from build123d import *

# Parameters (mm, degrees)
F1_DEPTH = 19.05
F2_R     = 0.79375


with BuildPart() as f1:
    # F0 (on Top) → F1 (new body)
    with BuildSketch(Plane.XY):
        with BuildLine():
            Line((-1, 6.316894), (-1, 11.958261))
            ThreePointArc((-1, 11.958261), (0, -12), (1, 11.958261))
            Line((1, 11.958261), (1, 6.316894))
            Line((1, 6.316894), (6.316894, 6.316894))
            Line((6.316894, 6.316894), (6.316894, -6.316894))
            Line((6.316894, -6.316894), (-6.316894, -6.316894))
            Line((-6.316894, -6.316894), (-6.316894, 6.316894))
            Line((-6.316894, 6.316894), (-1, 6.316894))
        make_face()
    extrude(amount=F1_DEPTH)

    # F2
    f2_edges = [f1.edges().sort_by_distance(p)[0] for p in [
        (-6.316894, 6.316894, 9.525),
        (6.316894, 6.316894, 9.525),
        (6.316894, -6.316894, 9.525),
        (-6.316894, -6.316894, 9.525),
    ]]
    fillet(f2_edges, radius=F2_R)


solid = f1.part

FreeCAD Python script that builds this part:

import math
import FreeCAD as App
import Part
import Sketcher

V = App.Vector
Q = App.Units.Quantity


def edges_at(feature, points):
    """Names of the edges that pass closest to the given points."""
    edges = feature.Shape.Edges
    near = lambda p: min(range(len(edges)), key=lambda i: edges[i].distToShape(Part.Vertex(*p))[0])
    return sorted({f"Edge{near(p) + 1}" for p in points})

doc = App.newDocument("Part")
body = doc.addObject("PartDesign::Body", "Body")

sketch1 = body.newObject("Sketcher::SketchObject", "Sketch")
sketch1.AttachmentSupport = (doc.getObject("XY_Plane"), [""])
sketch1.MapMode = "FlatFace"
sketch1.addGeometry([
    Part.LineSegment(V(-1, 6.3, 0), V(-1, 12, 0)),
    Part.ArcOfCircle(Part.Circle(V(0, 0, 0), V(0, 0, 1), 12), math.radians(95), math.radians(445)),
    Part.LineSegment(V(1, 12, 0), V(1, 6.3, 0)),
    Part.LineSegment(V(1, 6.3, 0), V(6.3, 6.3, 0)),
    Part.LineSegment(V(6.3, 6.3, 0), V(6.3, -6.3, 0)),
    Part.LineSegment(V(6.3, -6.3, 0), V(-6.3, -6.3, 0)),
    Part.LineSegment(V(-6.3, -6.3, 0), V(-6.3, 6.3, 0)),
    Part.LineSegment(V(-6.3, 6.3, 0), V(-1, 6.3, 0)),
], False)
sketch1.addConstraint([
    Sketcher.Constraint("Coincident", 0, 2, 1, 1),
    Sketcher.Constraint("Coincident", 1, 2, 2, 1),
    Sketcher.Constraint("Coincident", 2, 2, 3, 1),
    Sketcher.Constraint("Coincident", 3, 2, 4, 1),
    Sketcher.Constraint("Coincident", 4, 2, 5, 1),
    Sketcher.Constraint("Coincident", 5, 2, 6, 1),
    Sketcher.Constraint("Coincident", 6, 2, 7, 1),
    Sketcher.Constraint("Coincident", 7, 2, 0, 1),
    Sketcher.Constraint("Vertical", 0),
    Sketcher.Constraint("Vertical", 2),
    Sketcher.Constraint("Horizontal", 3),
    Sketcher.Constraint("Vertical", 4),
    Sketcher.Constraint("Horizontal", 5),
    Sketcher.Constraint("Vertical", 6),
    Sketcher.Constraint("Horizontal", 7),
    Sketcher.Constraint("Coincident", 1, 3, -1, 1),
    Sketcher.Constraint("Symmetric", 3, 2, 5, 2, -1, 1),
    Sketcher.Constraint("Symmetric", 2, 2, 7, 2, -2),
    Sketcher.Constraint("Equal", 5, 4),
    Sketcher.Constraint("Radius", 1, Q("12 mm")),
    Sketcher.Constraint("DistanceX", 0, 2, -1, 1, Q("1 mm")),
    Sketcher.Constraint("DistanceX", 3, 1, 3, 2, Q("5.316894 mm")),
])
pad1 = body.newObject("PartDesign::Pad", "Pad")
pad1.Profile = sketch1
pad1.Length = Q("0.75 in")
doc.recompute()

fillet = body.newObject("PartDesign::Fillet", "Fillet")
fillet.Base = (pad1, edges_at(pad1, [
    (-6.317, 6.317, 9.525),
    (6.317, 6.317, 9.525),
    (6.317, -6.317, 9.525),
    (-6.317, -6.317, 9.525),
]))
fillet.Radius = Q("0.03125 in")

doc.recompute()
